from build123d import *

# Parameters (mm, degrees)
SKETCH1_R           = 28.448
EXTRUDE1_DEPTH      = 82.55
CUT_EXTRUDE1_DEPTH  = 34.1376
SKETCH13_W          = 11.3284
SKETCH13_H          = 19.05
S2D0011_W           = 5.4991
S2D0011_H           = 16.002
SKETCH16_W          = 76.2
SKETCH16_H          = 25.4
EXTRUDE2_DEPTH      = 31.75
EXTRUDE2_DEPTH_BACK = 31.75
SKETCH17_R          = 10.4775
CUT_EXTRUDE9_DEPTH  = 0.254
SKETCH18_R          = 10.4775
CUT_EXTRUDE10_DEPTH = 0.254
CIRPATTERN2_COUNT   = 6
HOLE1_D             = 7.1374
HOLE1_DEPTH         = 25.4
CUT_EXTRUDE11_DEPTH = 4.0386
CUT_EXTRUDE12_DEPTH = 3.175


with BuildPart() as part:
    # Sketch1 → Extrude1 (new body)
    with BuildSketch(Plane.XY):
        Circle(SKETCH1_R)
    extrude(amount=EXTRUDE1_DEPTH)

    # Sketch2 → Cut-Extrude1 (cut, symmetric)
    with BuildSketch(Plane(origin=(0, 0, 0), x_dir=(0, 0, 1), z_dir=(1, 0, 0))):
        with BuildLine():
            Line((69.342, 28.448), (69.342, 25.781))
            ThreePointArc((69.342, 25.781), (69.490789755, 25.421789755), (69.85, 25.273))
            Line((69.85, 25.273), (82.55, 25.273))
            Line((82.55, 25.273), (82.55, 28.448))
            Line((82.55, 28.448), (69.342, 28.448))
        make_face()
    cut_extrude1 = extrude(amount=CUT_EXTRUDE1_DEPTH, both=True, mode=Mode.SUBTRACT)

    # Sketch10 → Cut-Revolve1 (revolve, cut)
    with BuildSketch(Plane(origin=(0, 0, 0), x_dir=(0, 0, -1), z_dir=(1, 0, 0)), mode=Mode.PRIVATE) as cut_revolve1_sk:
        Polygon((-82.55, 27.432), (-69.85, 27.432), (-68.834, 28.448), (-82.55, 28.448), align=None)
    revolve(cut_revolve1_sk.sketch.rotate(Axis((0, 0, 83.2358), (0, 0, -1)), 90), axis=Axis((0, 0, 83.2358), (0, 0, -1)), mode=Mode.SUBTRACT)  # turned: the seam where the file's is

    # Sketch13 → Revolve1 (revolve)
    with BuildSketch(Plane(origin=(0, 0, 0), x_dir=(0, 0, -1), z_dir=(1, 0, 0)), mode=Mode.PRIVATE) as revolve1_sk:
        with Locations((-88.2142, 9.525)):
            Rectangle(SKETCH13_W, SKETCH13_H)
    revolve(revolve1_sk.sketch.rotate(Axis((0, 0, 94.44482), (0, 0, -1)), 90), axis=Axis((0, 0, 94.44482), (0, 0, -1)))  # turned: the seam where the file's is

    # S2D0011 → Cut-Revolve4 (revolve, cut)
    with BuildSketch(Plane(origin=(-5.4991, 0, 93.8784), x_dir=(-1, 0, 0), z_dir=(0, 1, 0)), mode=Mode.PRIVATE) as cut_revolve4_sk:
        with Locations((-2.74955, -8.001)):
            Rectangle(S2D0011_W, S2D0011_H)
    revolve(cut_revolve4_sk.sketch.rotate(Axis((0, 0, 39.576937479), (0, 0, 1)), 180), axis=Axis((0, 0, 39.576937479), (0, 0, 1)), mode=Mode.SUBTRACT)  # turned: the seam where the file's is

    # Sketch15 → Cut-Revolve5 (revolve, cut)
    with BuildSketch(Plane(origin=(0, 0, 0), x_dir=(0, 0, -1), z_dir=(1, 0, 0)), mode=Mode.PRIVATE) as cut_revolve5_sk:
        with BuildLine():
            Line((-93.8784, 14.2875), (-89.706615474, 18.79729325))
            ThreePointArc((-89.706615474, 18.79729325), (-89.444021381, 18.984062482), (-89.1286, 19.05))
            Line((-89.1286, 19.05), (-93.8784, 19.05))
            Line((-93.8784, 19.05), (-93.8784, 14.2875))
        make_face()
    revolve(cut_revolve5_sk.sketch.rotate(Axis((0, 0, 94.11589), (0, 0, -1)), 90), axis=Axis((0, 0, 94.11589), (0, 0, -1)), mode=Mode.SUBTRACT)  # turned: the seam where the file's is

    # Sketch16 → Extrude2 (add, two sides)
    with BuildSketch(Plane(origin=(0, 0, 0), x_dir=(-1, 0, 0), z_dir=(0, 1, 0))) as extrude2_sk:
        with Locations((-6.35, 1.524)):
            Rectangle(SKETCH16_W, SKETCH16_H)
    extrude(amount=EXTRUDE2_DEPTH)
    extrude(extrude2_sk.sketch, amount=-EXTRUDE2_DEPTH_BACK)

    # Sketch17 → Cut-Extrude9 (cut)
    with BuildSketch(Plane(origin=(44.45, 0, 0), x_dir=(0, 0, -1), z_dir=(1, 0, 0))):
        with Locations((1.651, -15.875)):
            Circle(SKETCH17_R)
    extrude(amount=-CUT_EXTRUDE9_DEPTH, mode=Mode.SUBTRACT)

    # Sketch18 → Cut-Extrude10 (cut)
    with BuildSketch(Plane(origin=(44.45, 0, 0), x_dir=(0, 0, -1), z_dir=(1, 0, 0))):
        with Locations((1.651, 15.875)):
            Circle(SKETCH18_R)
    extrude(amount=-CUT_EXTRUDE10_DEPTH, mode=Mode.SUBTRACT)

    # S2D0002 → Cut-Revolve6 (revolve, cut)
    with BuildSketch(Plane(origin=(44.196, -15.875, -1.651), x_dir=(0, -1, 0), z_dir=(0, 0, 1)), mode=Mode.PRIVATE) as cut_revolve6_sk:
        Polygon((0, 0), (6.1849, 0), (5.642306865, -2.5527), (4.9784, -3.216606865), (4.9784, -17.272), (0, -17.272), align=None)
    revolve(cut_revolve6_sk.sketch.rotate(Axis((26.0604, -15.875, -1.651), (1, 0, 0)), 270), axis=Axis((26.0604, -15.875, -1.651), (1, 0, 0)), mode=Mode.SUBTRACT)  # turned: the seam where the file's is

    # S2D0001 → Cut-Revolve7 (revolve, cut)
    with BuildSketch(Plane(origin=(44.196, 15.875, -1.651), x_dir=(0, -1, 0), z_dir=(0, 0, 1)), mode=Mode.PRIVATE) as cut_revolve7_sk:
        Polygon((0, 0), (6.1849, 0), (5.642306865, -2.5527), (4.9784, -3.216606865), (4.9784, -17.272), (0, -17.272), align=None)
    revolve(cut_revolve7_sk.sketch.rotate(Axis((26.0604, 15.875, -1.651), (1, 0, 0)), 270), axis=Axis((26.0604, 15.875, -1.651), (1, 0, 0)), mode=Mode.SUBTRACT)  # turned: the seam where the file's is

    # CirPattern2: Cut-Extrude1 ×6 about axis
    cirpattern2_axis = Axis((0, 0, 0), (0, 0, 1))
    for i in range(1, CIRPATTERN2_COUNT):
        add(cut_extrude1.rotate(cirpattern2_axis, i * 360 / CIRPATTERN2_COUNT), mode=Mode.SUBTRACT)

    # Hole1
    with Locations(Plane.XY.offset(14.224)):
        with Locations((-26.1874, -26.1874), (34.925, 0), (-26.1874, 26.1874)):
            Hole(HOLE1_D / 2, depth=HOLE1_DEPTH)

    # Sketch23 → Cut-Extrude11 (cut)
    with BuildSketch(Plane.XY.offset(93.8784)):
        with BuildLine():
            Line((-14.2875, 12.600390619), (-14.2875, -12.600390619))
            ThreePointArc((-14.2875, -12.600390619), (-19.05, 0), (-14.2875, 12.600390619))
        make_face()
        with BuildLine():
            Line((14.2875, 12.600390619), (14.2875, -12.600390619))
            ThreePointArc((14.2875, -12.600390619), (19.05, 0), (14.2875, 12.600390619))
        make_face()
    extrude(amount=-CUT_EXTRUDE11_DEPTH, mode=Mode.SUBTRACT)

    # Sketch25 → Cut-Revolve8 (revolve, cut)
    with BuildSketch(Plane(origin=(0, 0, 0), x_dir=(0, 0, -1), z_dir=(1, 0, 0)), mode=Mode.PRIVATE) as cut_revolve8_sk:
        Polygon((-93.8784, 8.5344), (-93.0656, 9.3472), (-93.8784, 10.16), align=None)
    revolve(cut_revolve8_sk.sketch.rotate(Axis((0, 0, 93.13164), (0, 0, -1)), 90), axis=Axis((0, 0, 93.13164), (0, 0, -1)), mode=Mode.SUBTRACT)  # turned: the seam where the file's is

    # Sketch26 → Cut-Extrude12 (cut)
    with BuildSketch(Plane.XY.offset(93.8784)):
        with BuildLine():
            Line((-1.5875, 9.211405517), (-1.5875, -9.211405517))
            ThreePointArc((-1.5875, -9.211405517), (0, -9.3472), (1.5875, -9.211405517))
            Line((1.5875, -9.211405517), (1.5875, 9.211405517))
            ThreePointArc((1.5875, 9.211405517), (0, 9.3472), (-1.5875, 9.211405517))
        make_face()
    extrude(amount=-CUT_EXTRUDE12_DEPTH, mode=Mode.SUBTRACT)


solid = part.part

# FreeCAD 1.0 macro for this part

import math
import FreeCAD as App
import Part
import Sketcher
from FreeCAD import Vector
Q = App.Units.Quantity


def add_polygon(sketch, points):
    """Adds a closed chain of lines whose ends are joined by coincident constraints."""
    first, n = sketch.GeometryCount, len(points)
    for a, b in zip(points, points[1:] + points[:1]):
        sketch.addGeometry(Part.LineSegment(App.Vector(*a, 0), App.Vector(*b, 0)), False)
    for i in range(n):
        sketch.addConstraint(Sketcher.Constraint("Coincident", first + i, 2, first + (i + 1) % n, 1))

doc = App.newDocument("Part")
body = doc.addObject("PartDesign::Body", "Body")

# Sketch on XY plane
sketch1 = body.newObject("Sketcher::SketchObject", "Sketch")
sketch1.AttachmentSupport = (doc.getObject("XY_Plane"), [""])
sketch1.MapMode = "FlatFace"
sketch1.addGeometry(Part.Circle(Vector(0, 0, 0), Vector(0, 0, 1), 28.448), False)
sketch1.addConstraint(Sketcher.Constraint("Coincident", 0, 3, -1, 1))
sketch1.addConstraint(Sketcher.Constraint("Diameter", 0, Q("2.24 in")))
pad1 = body.newObject("PartDesign::Pad", "Pad")
pad1.Profile = sketch1
pad1.Length = Q("3.25 in")

# Sketch on YZ plane
sketch2 = body.newObject("Sketcher::SketchObject", "Sketch001")
sketch2.AttachmentSupport = (doc.getObject("YZ_Plane"), [""])
sketch2.MapMode = "FlatFace"
sketch2.addGeometry(Part.LineSegment(Vector(-28.448, 69.342, 0), Vector(-25.781, 69.342, 0)), False)
sketch2.addGeometry(Part.ArcOfCircle(Part.Circle(Vector(-25.781, 69.85, 0), Vector(0, 0, 1), 0.508), math.radians(-90), math.radians(0)), False)
sketch2.addGeometry(Part.LineSegment(Vector(-25.273, 69.85, 0), Vector(-25.273, 82.55, 0)), False)
sketch2.addGeometry(Part.LineSegment(Vector(-25.273, 82.55, 0), Vector(-28.448, 82.55, 0)), False)
sketch2.addGeometry(Part.LineSegment(Vector(-28.448, 82.55, 0), Vector(-28.448, 69.342, 0)), False)
sketch2.addConstraint(Sketcher.Constraint("Tangent", 0, 2, 1, 1))
sketch2.addConstraint(Sketcher.Constraint("Tangent", 1, 2, 2, 1))
sketch2.addConstraint(Sketcher.Constraint("Coincident", 2, 2, 3, 1))
sketch2.addConstraint(Sketcher.Constraint("Coincident", 3, 2, 4, 1))
sketch2.addConstraint(Sketcher.Constraint("Coincident", 4, 2, 0, 1))
sketch2.addConstraint(Sketcher.Constraint("Horizontal", 0))
sketch2.addConstraint(Sketcher.Constraint("Vertical", 2))
sketch2.addConstraint(Sketcher.Constraint("Horizontal", 3))
sketch2.addConstraint(Sketcher.Constraint("Vertical", 4))
sketch2.addConstraint(Sketcher.Constraint("Radius", 1, Q("0.02 in")))
sketch2.addConstraint(Sketcher.Constraint("DistanceY", 2, 1, 2, 2, Q("0.5 in")))
sketch2.addConstraint(Sketcher.Constraint("DistanceX", 0, 1, 0, 2, Q("0.105 in")))
sketch2.addConstraint(Sketcher.Constraint("DistanceY", -1, 1, 1, 3, Q("2.75 in")))
sketch2.addConstraint(Sketcher.Constraint("DistanceX", 3, 2, -1, 1, Q("1.12 in")))
pocket1 = body.newObject("PartDesign::Pocket", "Pocket")
pocket1.Profile = sketch2
pocket1.Length = Q("2.688 in")
pocket1.Midplane = True

# Sketch on YZ plane
sketch3 = body.newObject("Sketcher::SketchObject", "Sketch002")
sketch3.AttachmentSupport = (doc.getObject("YZ_Plane"), [""])
sketch3.MapMode = "FlatFace"
add_polygon(sketch3, [(27.432, 82.55), (27.432, 69.85), (28.448, 68.834), (28.448, 82.55)])  # lines 0-3
sketch3.addConstraint(Sketcher.Constraint("Vertical", 0))
sketch3.addConstraint(Sketcher.Constraint("Vertical", 2))
sketch3.addConstraint(Sketcher.Constraint("Horizontal", 3))
sketch3.addConstraint(Sketcher.Constraint("DistanceY", 0, 2, 0, 1, Q("0.5 in")))
sketch3.addConstraint(Sketcher.Constraint("Angle", 1, Q("-45 deg")))
sketch3.addConstraint(Sketcher.Constraint("DistanceX", 3, 2, 3, 1, Q("0.04 in")))
sketch3.addConstraint(Sketcher.Constraint("DistanceX", -1, 1, 0, 2, Q("1.08 in")))
sketch3.addConstraint(Sketcher.Constraint("DistanceY", -1, 1, 0, 2, Q("2.75 in")))
groove = body.newObject("PartDesign::Groove", "Groove")
groove.Profile = sketch3
groove.ReferenceAxis = (sketch3, ["V_Axis"])
groove.Angle = 360

# Sketch on YZ plane
sketch4 = body.newObject("Sketcher::SketchObject", "Sketch003")
sketch4.AttachmentSupport = (doc.getObject("YZ_Plane"), [""])
sketch4.MapMode = "FlatFace"
add_polygon(sketch4, [(19.05, 93.8784), (0, 93.8784), (0, 82.55), (19.05, 82.55)])  # lines 0-3
sketch4.addConstraint(Sketcher.Constraint("Horizontal", 0))
sketch4.addConstraint(Sketcher.Constraint("Vertical", 1))
sketch4.addConstraint(Sketcher.Constraint("Horizontal", 2))
sketch4.addConstraint(Sketcher.Constraint("Vertical", 3))
sketch4.addConstraint(Sketcher.Constraint("PointOnObject", 0, 2, -2))
sketch4.addConstraint(Sketcher.Constraint("DistanceX", 0, 2, 0, 1, Q("0.75 in")))
sketch4.addConstraint(Sketcher.Constraint("DistanceY", 1, 2, 1, 1, Q("0.446 in")))
sketch4.addConstraint(Sketcher.Constraint("DistanceY", -1, 1, 1, 2, Q("3.25 in")))
revolution = body.newObject("PartDesign::Revolution", "Revolution")
revolution.Profile = sketch4
revolution.ReferenceAxis = (sketch4, ["V_Axis"])
revolution.Angle = 360

# Sketch on XZ plane
sketch5 = body.newObject("Sketcher::SketchObject", "Sketch004")
sketch5.AttachmentSupport = (doc.getObject("XZ_Plane"), [""])
sketch5.MapMode = "FlatFace"
add_polygon(sketch5, [(0, 93.8784), (0, 77.8764), (-5.4991, 77.8764), (-5.4991, 93.8784)])  # lines 0-3
sketch5.addConstraint(Sketcher.Constraint("Vertical", 0))
sketch5.addConstraint(Sketcher.Constraint("Horizontal", 1))
sketch5.addConstraint(Sketcher.Constraint("Vertical", 2))
sketch5.addConstraint(Sketcher.Constraint("Horizontal", 3))
sketch5.addConstraint(Sketcher.Constraint("PointOnObject", 0, 2, -2))
sketch5.addConstraint(Sketcher.Constraint("DistanceY", 0, 2, 0, 1, Q("0.63 in")))
sketch5.addConstraint(Sketcher.Constraint("DistanceX", 1, 2, 1, 1, Q("0.2165 in")))
sketch5.addConstraint(Sketcher.Constraint("DistanceY", -1, 1, 0, 2, Q("3.066 in")))
groove2 = body.newObject("PartDesign::Groove", "Groove001")
groove2.Profile = sketch5
groove2.ReferenceAxis = (sketch5, ["V_Axis"])
groove2.Angle = 360

# Sketch on YZ plane
sketch6 = body.newObject("Sketcher::SketchObject", "Sketch005")
sketch6.AttachmentSupport = (doc.getObject("YZ_Plane"), [""])
sketch6.MapMode = "FlatFace"
sketch6.addGeometry(Part.LineSegment(Vector(14.2875, 93.8784, 0), Vector(18.797293, 89.706615, 0)), False)
sketch6.addGeometry(Part.ArcOfCircle(Part.Circle(Vector(18.2626, 89.1286, 0), Vector(0, 0, 1), 0.7874), math.radians(0), math.radians(47.229629)), False)
sketch6.addGeometry(Part.LineSegment(Vector(19.05, 89.1286, 0), Vector(19.05, 93.8784, 0)), False)
sketch6.addGeometry(Part.LineSegment(Vector(19.05, 93.8784, 0), Vector(14.2875, 93.8784, 0)), False)
sketch6.addConstraint(Sketcher.Constraint("Tangent", 0, 2, 1, 2))
sketch6.addConstraint(Sketcher.Constraint("Tangent", 1, 1, 2, 1))
sketch6.addConstraint(Sketcher.Constraint("Coincident", 2, 2, 3, 1))
sketch6.addConstraint(Sketcher.Constraint("Coincident", 3, 2, 0, 1))
sketch6.addConstraint(Sketcher.Constraint("Vertical", 2))
sketch6.addConstraint(Sketcher.Constraint("Horizontal", 3))
sketch6.addConstraint(Sketcher.Constraint("Radius", 1, Q("0.031 in")))
sketch6.addConstraint(Sketcher.Constraint("DistanceX", 3, 2, 3, 1, Q("0.1875 in")))
sketch6.addConstraint(Sketcher.Constraint("DistanceY", 2, 1, 2, 2, Q("0.187 in")))
sketch6.addConstraint(Sketcher.Constraint("DistanceX", -1, 1, 1, 1, Q("0.75 in")))
sketch6.addConstraint(Sketcher.Constraint("DistanceY", -1, 1, 1, 3, Q("3.509 in")))
groove3 = body.newObject("PartDesign::Groove", "Groove002")
groove3.Profile = sketch6
groove3.ReferenceAxis = (sketch6, ["V_Axis"])
groove3.Angle = 360

# Sketch on XZ plane
sketch7 = body.newObject("Sketcher::SketchObject", "Sketch006")
sketch7.AttachmentSupport = (doc.getObject("XZ_Plane"), [""])
sketch7.MapMode = "FlatFace"
add_polygon(sketch7, [(44.45, 14.224), (44.45, -11.176), (-31.75, -11.176), (-31.75, 14.224)])  # lines 0-3
sketch7.addConstraint(Sketcher.Constraint("Vertical", 0))
sketch7.addConstraint(Sketcher.Constraint("Horizontal", 1))
sketch7.addConstraint(Sketcher.Constraint("Vertical", 2))
sketch7.addConstraint(Sketcher.Constraint("Horizontal", 3))
sketch7.addConstraint(Sketcher.Constraint("DistanceX", 1, 2, 1, 1, Q("3 in")))
sketch7.addConstraint(Sketcher.Constraint("DistanceY", 0, 2, 0, 1, Q("1 in")))
sketch7.addConstraint(Sketcher.Constraint("DistanceX", -1, 1, 0, 2, Q("1.75 in")))
sketch7.addConstraint(Sketcher.Constraint("DistanceY", 0, 2, -1, 1, Q("0.44 in")))
pad2 = body.newObject("PartDesign::Pad", "Pad001")
pad2.Profile = sketch7
pad2.Type = "TwoLengths"
pad2.Length = Q("1.25 in")
pad2.Length2 = Q("1.25 in")
pad2.Reversed = True

# Sketch on YZ plane
sketch8 = body.newObject("Sketcher::SketchObject", "Sketch007")
sketch8.AttachmentSupport = (doc.getObject("YZ_Plane"), [""])
sketch8.MapMode = "FlatFace"
sketch8.AttachmentOffset = App.Placement(Vector(0, 0, 1.75 * 25.4), App.Rotation())
sketch8.addGeometry(Part.Circle(Vector(-15.875, -1.651, 0), Vector(0, 0, 1), 10.4775), False)
sketch8.addConstraint(Sketcher.Constraint("Diameter", 0, Q("0.825 in")))
sketch8.addConstraint(Sketcher.Constraint("DistanceX", 0, 3, -1, 1, Q("0.625 in")))
sketch8.addConstraint(Sketcher.Constraint("DistanceY", 0, 3, -1, 1, Q("0.065 in")))
pocket2 = body.newObject("PartDesign::Pocket", "Pocket001")
pocket2.Profile = sketch8
pocket2.Length = Q("0.01 in")

# Sketch on YZ plane
sketch9 = body.newObject("Sketcher::SketchObject", "Sketch008")
sketch9.AttachmentSupport = (doc.getObject("YZ_Plane"), [""])
sketch9.MapMode = "FlatFace"
sketch9.AttachmentOffset = App.Placement(Vector(0, 0, 1.75 * 25.4), App.Rotation())
sketch9.addGeometry(Part.Circle(Vector(15.875, -1.651, 0), Vector(0, 0, 1), 10.4775), False)
sketch9.addConstraint(Sketcher.Constraint("Diameter", 0, Q("0.825 in")))
sketch9.addConstraint(Sketcher.Constraint("DistanceX", -1, 1, 0, 3, Q("0.625 in")))
sketch9.addConstraint(Sketcher.Constraint("DistanceY", 0, 3, -1, 1, Q("0.065 in")))
pocket3 = body.newObject("PartDesign::Pocket", "Pocket002")
pocket3.Profile = sketch9
pocket3.Length = Q("0.01 in")

# Sketch on XY plane
sketch10 = body.newObject("Sketcher::SketchObject", "Sketch009")
sketch10.AttachmentSupport = (doc.getObject("XY_Plane"), [""])
sketch10.MapMode = "FlatFace"
sketch10.AttachmentOffset = App.Placement(Vector(0, 0, -0.065 * 25.4), App.Rotation())
add_polygon(sketch10, [(44.196, -22.0599), (44.196, -15.875), (26.924, -15.875), (26.924, -20.8534), (40.979393, -20.8534), (41.6433, -21.517307)])  # lines 0-5
sketch10.addGeometry(Part.LineSegment(Vector(26.924, -15.875, 0), Vector(44.196, -15.875, 0)), True)  # axis
sketch10.addConstraint(Sketcher.Constraint("Vertical", 0))
sketch10.addConstraint(Sketcher.Constraint("Horizontal", 1))
sketch10.addConstraint(Sketcher.Constraint("Vertical", 2))
sketch10.addConstraint(Sketcher.Constraint("Horizontal", 3))
sketch10.addConstraint(Sketcher.Constraint("Horizontal", 6))
sketch10.addConstraint(Sketcher.Constraint("Coincident", 6, 1, 1, 2))
sketch10.addConstraint(Sketcher.Constraint("Vertical", 5, 2, 6, 2))
sketch10.addConstraint(Sketcher.Constraint("Angle", 4, Q("-45 deg")))
sketch10.addConstraint(Sketcher.Constraint("Angle", 5, Q("-12 deg")))
sketch10.addConstraint(Sketcher.Constraint("DistanceX", 1, 2, 1, 1, Q("0.68 in")))
sketch10.addConstraint(Sketcher.Constraint("DistanceY", 2, 2, 2, 1, Q("0.196 in")))
sketch10.addConstraint(Sketcher.Constraint("DistanceX", -1, 1, 0, 2, Q("1.74 in")))
sketch10.addConstraint(Sketcher.Constraint("DistanceY", 0, 1, 0, 2, Q("0.2435 in")))
sketch10.addConstraint(Sketcher.Constraint("DistanceY", 0, 2, -1, 1, Q("0.625 in")))
sketch10.addConstraint(Sketcher.Constraint("DistanceX", -1, 1, 4, 2, Q("1.6395 in")))
groove4 = body.newObject("PartDesign::Groove", "Groove003")
groove4.Profile = sketch10
groove4.ReferenceAxis = (sketch10, ["Axis0"])
groove4.Angle = 360

# Sketch on XY plane
sketch11 = body.newObject("Sketcher::SketchObject", "Sketch010")
sketch11.AttachmentSupport = (doc.getObject("XY_Plane"), [""])
sketch11.MapMode = "FlatFace"
sketch11.AttachmentOffset = App.Placement(Vector(0, 0, -0.065 * 25.4), App.Rotation())
add_polygon(sketch11, [(44.196, 9.6901), (44.196, 15.875), (26.924, 15.875), (26.924, 10.8966), (40.979393, 10.8966), (41.6433, 10.232693)])  # lines 0-5
sketch11.addGeometry(Part.LineSegment(Vector(26.924, 15.875, 0), Vector(44.196, 15.875, 0)), True)  # axis
sketch11.addConstraint(Sketcher.Constraint("Vertical", 0))
sketch11.addConstraint(Sketcher.Constraint("Horizontal", 1))
sketch11.addConstraint(Sketcher.Constraint("Vertical", 2))
sketch11.addConstraint(Sketcher.Constraint("Horizontal", 3))
sketch11.addConstraint(Sketcher.Constraint("Horizontal", 6))
sketch11.addConstraint(Sketcher.Constraint("Coincident", 6, 1, 1, 2))
sketch11.addConstraint(Sketcher.Constraint("Vertical", 5, 2, 6, 2))
sketch11.addConstraint(Sketcher.Constraint("Angle", 4, Q("-45 deg")))
sketch11.addConstraint(Sketcher.Constraint("Angle", 5, Q("-12 deg")))
sketch11.addConstraint(Sketcher.Constraint("DistanceX", 1, 2, 1, 1, Q("0.68 in")))
sketch11.addConstraint(Sketcher.Constraint("DistanceY", 2, 2, 2, 1, Q("0.196 in")))
sketch11.addConstraint(Sketcher.Constraint("DistanceX", -1, 1, 0, 2, Q("1.74 in")))
sketch11.addConstraint(Sketcher.Constraint("DistanceY", 0, 1, 0, 2, Q("0.2435 in")))
sketch11.addConstraint(Sketcher.Constraint("DistanceY", -1, 1, 0, 2, Q("0.625 in")))
sketch11.addConstraint(Sketcher.Constraint("DistanceX", -1, 1, 4, 2, Q("1.6395 in")))
groove5 = body.newObject("PartDesign::Groove", "Groove004")
groove5.Profile = sketch11
groove5.ReferenceAxis = (sketch11, ["Axis0"])
groove5.Angle = 360
doc.recompute()

polarpattern = body.newObject("PartDesign::PolarPattern", "PolarPattern")
polarpattern.Originals = [pocket1]
polarpattern.Axis = (doc.getObject("Z_Axis"), [""])
polarpattern.Angle = 360
polarpattern.Occurrences = 6
body.Tip = polarpattern

# Sketch on XY plane
sketch12 = body.newObject("Sketcher::SketchObject", "Sketch011")
sketch12.AttachmentSupport = (doc.getObject("XY_Plane"), [""])
sketch12.MapMode = "FlatFace"
sketch12.AttachmentOffset = App.Placement(Vector(0, 0, 0.56 * 25.4), App.Rotation())
sketch12.addGeometry(Part.Circle(Vector(-26.1874, -26.1874, 0), Vector(0, 0, 1), 3.5687), False)
sketch12.addGeometry(Part.Circle(Vector(34.925, 0, 0), Vector(0, 0, 1), 3.5687), False)
sketch12.addGeometry(Part.Circle(Vector(-26.1874, 26.1874, 0), Vector(0, 0, 1), 3.5687), False)
sketch12.addConstraint(Sketcher.Constraint("Equal", 0, 1))
sketch12.addConstraint(Sketcher.Constraint("Equal", 1, 2))
sketch12.addConstraint(Sketcher.Constraint("Symmetric", 0, 3, 2, 3, -1))
sketch12.addConstraint(Sketcher.Constraint("PointOnObject", 1, 3, -1))
sketch12.addConstraint(Sketcher.Constraint("Diameter", 0, Q("0.281 in")))
sketch12.addConstraint(Sketcher.Constraint("DistanceX", 0, 3, -1, 1, Q("1.031 in")))
sketch12.addConstraint(Sketcher.Constraint("DistanceY", 0, 3, -1, 1, Q("1.031 in")))
sketch12.addConstraint(Sketcher.Constraint("DistanceX", -1, 1, 1, 3, Q("1.375 in")))
doc.recompute()
hole = body.newObject("PartDesign::Hole", "Hole")
hole.Profile = sketch12
hole.ThreadType = "None"
hole.Diameter = Q("0.281 in")
hole.DepthType = "Dimension"
hole.Depth = Q("1 in")
hole.DrillPoint = "Flat"

# Sketch on XY plane
sketch13 = body.newObject("Sketcher::SketchObject", "Sketch012")
sketch13.AttachmentSupport = (doc.getObject("XY_Plane"), [""])
sketch13.MapMode = "FlatFace"
sketch13.AttachmentOffset = App.Placement(Vector(0, 0, 3.696 * 25.4), App.Rotation())
sketch13.addGeometry(Part.LineSegment(Vector(-14.2875, -12.600391, 0), Vector(-14.2875, 12.600391, 0)), False)
sketch13.addGeometry(Part.ArcOfCircle(Part.Circle(Vector(0, 0, 0), Vector(0, 0, 1), 19.05), math.radians(138.590378), math.radians(221.409622)), False)
sketch13.addGeometry(Part.LineSegment(Vector(14.2875, 12.600391, 0), Vector(14.2875, -12.600391, 0)), False)
sketch13.addGeometry(Part.ArcOfCircle(Part.Circle(Vector(0, 0, 0), Vector(0, 0, 1), 19.05), math.radians(-41.409622), math.radians(41.409622)), False)
sketch13.addConstraint(Sketcher.Constraint("Coincident", 0, 1, 1, 2))
sketch13.addConstraint(Sketcher.Constraint("Coincident", 1, 1, 0, 2))
sketch13.addConstraint(Sketcher.Constraint("Coincident", 2, 1, 3, 2))
sketch13.addConstraint(Sketcher.Constraint("Coincident", 3, 1, 2, 2))
sketch13.addConstraint(Sketcher.Constraint("Vertical", 0))
sketch13.addConstraint(Sketcher.Constraint("Vertical", 2))
sketch13.addConstraint(Sketcher.Constraint("Coincident", 1, 3, -1, 1))
sketch13.addConstraint(Sketcher.Constraint("Coincident", 3, 3, -1, 1))
sketch13.addConstraint(Sketcher.Constraint("Equal", 1, 3))
sketch13.addConstraint(Sketcher.Constraint("Horizontal", 1, 1, 2, 1))
sketch13.addConstraint(Sketcher.Constraint("Radius", 1, Q("0.75 in")))
sketch13.addConstraint(Sketcher.Constraint("DistanceX", 0, 1, -1, 1, Q("0.5625 in")))
pocket4 = body.newObject("PartDesign::Pocket", "Pocket003")
pocket4.Profile = sketch13
pocket4.Length = Q("0.159 in")

# Sketch on YZ plane
sketch14 = body.newObject("Sketcher::SketchObject", "Sketch013")
sketch14.AttachmentSupport = (doc.getObject("YZ_Plane"), [""])
sketch14.MapMode = "FlatFace"
add_polygon(sketch14, [(8.5344, 93.8784), (9.3472, 93.0656), (10.16, 93.8784)])  # lines 0-2
sketch14.addConstraint(Sketcher.Constraint("Horizontal", 2))
sketch14.addConstraint(Sketcher.Constraint("Perpendicular", 0, 1))
sketch14.addConstraint(Sketcher.Constraint("Equal", 0, 1))
sketch14.addConstraint(Sketcher.Constraint("DistanceX", -1, 1, 1, 2, Q("0.4 in")))
sketch14.addConstraint(Sketcher.Constraint("DistanceX", 2, 2, 2, 1, Q("0.064 in")))
sketch14.addConstraint(Sketcher.Constraint("DistanceY", -1, 1, 0, 2, Q("3.664 in")))
groove6 = body.newObject("PartDesign::Groove", "Groove005")
groove6.Profile = sketch14
groove6.ReferenceAxis = (sketch14, ["V_Axis"])
groove6.Angle = 360

# Sketch on XY plane
sketch15 = body.newObject("Sketcher::SketchObject", "Sketch014")
sketch15.AttachmentSupport = (doc.getObject("XY_Plane"), [""])
sketch15.MapMode = "FlatFace"
sketch15.AttachmentOffset = App.Placement(Vector(0, 0, 3.696 * 25.4), App.Rotation())
sketch15.addGeometry(Part.LineSegment(Vector(-1.5875, 9.211406, 0), Vector(-1.5875, -9.211406, 0)), False)
sketch15.addGeometry(Part.ArcOfCircle(Part.Circle(Vector(0, 0, 0), Vector(0, 0, 1), 9.3472), math.radians(-99.778339), math.radians(-80.221661)), False)
sketch15.addGeometry(Part.LineSegment(Vector(1.5875, -9.211406, 0), Vector(1.5875, 9.211406, 0)), False)
sketch15.addGeometry(Part.ArcOfCircle(Part.Circle(Vector(0, 0, 0), Vector(0, 0, 1), 9.3472), math.radians(80.221661), math.radians(99.778339)), False)
sketch15.addConstraint(Sketcher.Constraint("Coincident", 0, 2, 1, 1))
sketch15.addConstraint(Sketcher.Constraint("Coincident", 1, 2, 2, 1))
sketch15.addConstraint(Sketcher.Constraint("Coincident", 2, 2, 3, 1))
sketch15.addConstraint(Sketcher.Constraint("Coincident", 3, 2, 0, 1))
sketch15.addConstraint(Sketcher.Constraint("Vertical", 0))
sketch15.addConstraint(Sketcher.Constraint("Vertical", 2))
sketch15.addConstraint(Sketcher.Constraint("Coincident", 1, 3, -1, 1))
sketch15.addConstraint(Sketcher.Constraint("Coincident", 3, 3, -1, 1))
sketch15.addConstraint(Sketcher.Constraint("Equal", 1, 3))
sketch15.addConstraint(Sketcher.Constraint("Horizontal", 0, 2, 1, 2))
sketch15.addConstraint(Sketcher.Constraint("Radius", 1, Q("0.368 in")))
sketch15.addConstraint(Sketcher.Constraint("DistanceX", 0, 2, -1, 1, Q("0.0625 in")))
pocket5 = body.newObject("PartDesign::Pocket", "Pocket004")
pocket5.Profile = sketch15
pocket5.Length = Q("0.125 in")

doc.recompute()
